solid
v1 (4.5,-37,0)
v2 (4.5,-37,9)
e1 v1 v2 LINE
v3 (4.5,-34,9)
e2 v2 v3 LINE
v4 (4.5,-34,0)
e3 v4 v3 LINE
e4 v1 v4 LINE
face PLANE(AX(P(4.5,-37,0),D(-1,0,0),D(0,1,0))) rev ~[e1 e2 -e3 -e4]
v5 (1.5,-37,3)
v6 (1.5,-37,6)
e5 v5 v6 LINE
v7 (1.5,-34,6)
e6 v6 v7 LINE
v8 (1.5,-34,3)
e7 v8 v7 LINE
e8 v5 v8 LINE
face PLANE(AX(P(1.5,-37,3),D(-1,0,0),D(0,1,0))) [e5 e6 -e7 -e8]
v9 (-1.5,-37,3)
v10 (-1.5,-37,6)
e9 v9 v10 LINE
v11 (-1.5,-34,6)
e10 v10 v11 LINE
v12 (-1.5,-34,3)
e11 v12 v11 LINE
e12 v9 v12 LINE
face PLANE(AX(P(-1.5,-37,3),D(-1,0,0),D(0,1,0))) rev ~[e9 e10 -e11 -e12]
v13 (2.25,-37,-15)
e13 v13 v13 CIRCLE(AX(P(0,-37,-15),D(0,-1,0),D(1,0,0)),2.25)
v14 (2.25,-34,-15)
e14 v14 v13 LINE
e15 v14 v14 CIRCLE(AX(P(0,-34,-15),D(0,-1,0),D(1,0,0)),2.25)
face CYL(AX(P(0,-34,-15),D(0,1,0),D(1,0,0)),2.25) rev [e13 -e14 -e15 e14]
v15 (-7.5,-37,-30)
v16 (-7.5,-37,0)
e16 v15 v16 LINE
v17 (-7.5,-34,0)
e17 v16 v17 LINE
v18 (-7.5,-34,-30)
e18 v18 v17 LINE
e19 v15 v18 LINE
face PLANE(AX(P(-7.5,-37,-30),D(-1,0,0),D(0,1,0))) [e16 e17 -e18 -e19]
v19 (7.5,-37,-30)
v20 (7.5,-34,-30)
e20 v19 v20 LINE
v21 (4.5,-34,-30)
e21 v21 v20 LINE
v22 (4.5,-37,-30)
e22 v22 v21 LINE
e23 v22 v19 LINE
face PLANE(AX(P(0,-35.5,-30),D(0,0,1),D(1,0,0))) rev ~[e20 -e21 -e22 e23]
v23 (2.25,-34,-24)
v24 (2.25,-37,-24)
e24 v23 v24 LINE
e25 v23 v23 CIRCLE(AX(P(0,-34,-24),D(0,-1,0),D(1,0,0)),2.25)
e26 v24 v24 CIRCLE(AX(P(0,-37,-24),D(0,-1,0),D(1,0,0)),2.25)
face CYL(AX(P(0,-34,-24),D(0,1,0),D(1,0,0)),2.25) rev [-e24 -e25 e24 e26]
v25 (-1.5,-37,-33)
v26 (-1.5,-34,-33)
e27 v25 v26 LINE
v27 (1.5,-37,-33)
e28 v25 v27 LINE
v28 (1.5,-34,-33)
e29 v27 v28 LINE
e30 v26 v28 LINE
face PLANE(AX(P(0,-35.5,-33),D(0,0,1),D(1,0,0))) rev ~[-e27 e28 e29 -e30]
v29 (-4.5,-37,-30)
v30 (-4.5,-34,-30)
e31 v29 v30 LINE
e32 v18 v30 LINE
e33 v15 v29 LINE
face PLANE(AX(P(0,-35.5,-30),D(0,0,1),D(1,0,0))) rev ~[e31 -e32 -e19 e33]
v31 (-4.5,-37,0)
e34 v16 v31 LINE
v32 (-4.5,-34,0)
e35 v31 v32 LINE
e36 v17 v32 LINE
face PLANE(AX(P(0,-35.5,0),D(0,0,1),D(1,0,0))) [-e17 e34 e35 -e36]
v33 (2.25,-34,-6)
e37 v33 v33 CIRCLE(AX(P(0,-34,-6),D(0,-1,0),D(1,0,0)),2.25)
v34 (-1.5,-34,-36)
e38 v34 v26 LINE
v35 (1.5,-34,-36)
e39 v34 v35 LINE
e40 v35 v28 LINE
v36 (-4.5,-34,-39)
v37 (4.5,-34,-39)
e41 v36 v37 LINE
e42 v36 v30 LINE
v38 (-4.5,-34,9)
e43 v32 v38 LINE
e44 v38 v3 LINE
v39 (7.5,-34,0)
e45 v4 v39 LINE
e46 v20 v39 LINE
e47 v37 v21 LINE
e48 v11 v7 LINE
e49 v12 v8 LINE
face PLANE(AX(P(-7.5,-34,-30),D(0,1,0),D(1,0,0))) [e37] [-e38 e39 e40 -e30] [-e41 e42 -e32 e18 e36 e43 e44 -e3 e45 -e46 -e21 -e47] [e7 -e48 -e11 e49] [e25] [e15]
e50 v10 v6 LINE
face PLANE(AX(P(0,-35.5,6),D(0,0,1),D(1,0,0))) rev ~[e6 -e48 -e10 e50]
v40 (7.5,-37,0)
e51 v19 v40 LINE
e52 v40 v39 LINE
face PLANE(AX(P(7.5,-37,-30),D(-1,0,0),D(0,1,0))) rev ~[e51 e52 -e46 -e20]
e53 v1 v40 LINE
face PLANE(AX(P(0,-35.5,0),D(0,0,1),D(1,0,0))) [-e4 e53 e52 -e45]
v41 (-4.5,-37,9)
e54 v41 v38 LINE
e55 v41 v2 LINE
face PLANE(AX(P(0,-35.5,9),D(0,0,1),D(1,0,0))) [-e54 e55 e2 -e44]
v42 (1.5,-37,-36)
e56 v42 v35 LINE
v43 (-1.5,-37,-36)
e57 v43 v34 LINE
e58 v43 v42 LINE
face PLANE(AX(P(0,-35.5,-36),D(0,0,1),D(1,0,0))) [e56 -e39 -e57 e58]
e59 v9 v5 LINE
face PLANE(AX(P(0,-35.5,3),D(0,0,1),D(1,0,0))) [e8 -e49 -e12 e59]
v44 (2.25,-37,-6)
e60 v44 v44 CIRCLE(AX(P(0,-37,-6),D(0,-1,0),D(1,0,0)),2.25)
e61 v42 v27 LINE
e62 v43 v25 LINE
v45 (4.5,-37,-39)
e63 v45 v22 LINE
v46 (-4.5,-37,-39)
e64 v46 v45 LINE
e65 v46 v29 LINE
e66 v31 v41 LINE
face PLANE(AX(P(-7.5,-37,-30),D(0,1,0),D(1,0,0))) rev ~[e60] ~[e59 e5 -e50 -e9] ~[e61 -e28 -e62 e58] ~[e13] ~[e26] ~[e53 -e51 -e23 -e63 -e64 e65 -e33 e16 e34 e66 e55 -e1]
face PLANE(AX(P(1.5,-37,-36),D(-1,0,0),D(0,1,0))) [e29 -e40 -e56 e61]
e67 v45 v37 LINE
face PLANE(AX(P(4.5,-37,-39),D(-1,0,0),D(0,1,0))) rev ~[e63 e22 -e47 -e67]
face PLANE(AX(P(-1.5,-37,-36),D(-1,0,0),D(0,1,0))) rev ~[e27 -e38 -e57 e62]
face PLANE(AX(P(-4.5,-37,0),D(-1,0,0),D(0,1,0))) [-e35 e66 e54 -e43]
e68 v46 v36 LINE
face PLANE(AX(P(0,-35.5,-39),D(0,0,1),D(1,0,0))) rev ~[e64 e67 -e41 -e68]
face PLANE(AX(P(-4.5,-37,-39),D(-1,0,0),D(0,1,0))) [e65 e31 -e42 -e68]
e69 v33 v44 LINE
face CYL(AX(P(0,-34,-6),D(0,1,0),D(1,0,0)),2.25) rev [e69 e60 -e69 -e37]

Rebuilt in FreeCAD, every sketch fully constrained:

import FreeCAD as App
import Part
import Sketcher
Q = App.Units.Quantity


def add_polygon(sketch, points):
    """Adds a closed chain of lines whose ends are joined by coincident constraints."""
    first, n = sketch.GeometryCount, len(points)
    for a, b in zip(points, points[1:] + points[:1]):
        sketch.addGeometry(Part.LineSegment(App.Vector(*a, 0), App.Vector(*b, 0)), False)
    for i in range(n):
        sketch.addConstraint(Sketcher.Constraint("Coincident", first + i, 2, first + (i + 1) % n, 1))

doc = App.newDocument("Part")
params = doc.addObject("Spreadsheet::Sheet", "Params")
for row, (alias, value) in enumerate([
    ("sketch1_diameter", "4.5 mm"),
    ("pad1_length", "3 mm"),
    ("sketch2_diameter", "4.5 mm"),
    ("pad2_length", "3 mm"),
    ("sketch3_diameter", "4.5 mm"),
    ("pad3_length", "3 mm"),
    ("sketch4_width", "15 mm"),
    ("sketch4_height", "3 mm"),
    ("pad4_length", "30 mm"),
    ("sketch5_width", "3 mm"),
    ("pad5_length", "3 mm"),
    ("sketch6_width", "9 mm"),
    ("sketch6_height", "3 mm"),
    ("pad6_length", "9 mm"),
    ("sketch7_width", "3 mm"),
    ("pad7_length", "3 mm"),
    ("sketch8_width", "9 mm"),
    ("sketch8_height", "3 mm"),
    ("pad8_length", "9 mm"),
], start=1):
    params.set(f"A{row}", alias)
    params.set(f"B{row}", "=" + value)
    params.setAlias(f"B{row}", alias)

body = doc.addObject("PartDesign::Body", "Body")

sketch1 = body.newObject("Sketcher::SketchObject", "Sketch")
sketch1.AttachmentSupport = (doc.getObject("XY_Plane"), [""])
sketch1.MapMode = "FlatFace"
sketch1.addGeometry(Part.Circle(App.Vector(0, 0, 0), App.Vector(0, 0, 1), 2.2), False)
sketch1.addConstraint(Sketcher.Constraint("Coincident", 0, 3, -1, 1))
sketch1.addConstraint(Sketcher.Constraint("Diameter", 0, Q("4.5 mm")))
sketch1.setExpression("Constraints[1]", "Params.sketch1_diameter")
pad1 = body.newObject("PartDesign::Pad", "Pad")
pad1.Profile = sketch1
pad1.setExpression("Length", "Params.pad1_length")
body2 = doc.addObject("PartDesign::Body", "Body001")
doc.recompute()

body.Placement = App.Placement(App.Vector(0, 0, 0), App.Rotation(App.Vector(1, 0, 0), 90))
boolean = body2.newObject("PartDesign::Boolean", "Boolean")
boolean.Type = "Fuse"
boolean.addObjects([body])
body3 = doc.addObject("PartDesign::Body", "Body002")
doc.recompute()

body2.Placement = App.Placement(App.Vector(0, -63, -3), App.Rotation(App.Vector(0, 0, 1), 0))
boolean2 = body3.newObject("PartDesign::Boolean", "Boolean001")
boolean2.Type = "Fuse"
boolean2.addObjects([body2])
body4 = doc.addObject("PartDesign::Body", "Body003")

sketch2 = body4.newObject("Sketcher::SketchObject", "Sketch001")
sketch2.AttachmentSupport = (doc.getObject("XY_Plane003"), [""])
sketch2.MapMode = "FlatFace"
sketch2.addGeometry(Part.Circle(App.Vector(0, 0, 0), App.Vector(0, 0, 1), 2.2), False)
sketch2.addConstraint(Sketcher.Constraint("Coincident", 0, 3, -1, 1))
sketch2.addConstraint(Sketcher.Constraint("Diameter", 0, Q("4.5 mm")))
sketch2.setExpression("Constraints[1]", "Params.sketch2_diameter")
pad2 = body4.newObject("PartDesign::Pad", "Pad001")
pad2.Profile = sketch2
pad2.setExpression("Length", "Params.pad2_length")
body5 = doc.addObject("PartDesign::Body", "Body004")
doc.recompute()

body4.Placement = App.Placement(App.Vector(0, 0, 0), App.Rotation(App.Vector(1, 0, 0), 90))
boolean3 = body5.newObject("PartDesign::Boolean", "Boolean002")
boolean3.Type = "Fuse"
boolean3.addObjects([body4])
body6 = doc.addObject("PartDesign::Body", "Body005")
doc.recompute()

body5.Placement = App.Placement(App.Vector(0, -63, -21), App.Rotation(App.Vector(0, 0, 1), 0))
boolean4 = body6.newObject("PartDesign::Boolean", "Boolean003")
boolean4.Type = "Fuse"
boolean4.addObjects([body5])
body7 = doc.addObject("PartDesign::Body", "Body006")

sketch3 = body7.newObject("Sketcher::SketchObject", "Sketch002")
sketch3.AttachmentSupport = (doc.getObject("XY_Plane006"), [""])
sketch3.MapMode = "FlatFace"
sketch3.addGeometry(Part.Circle(App.Vector(0, 0, 0), App.Vector(0, 0, 1), 2.2), False)
sketch3.addConstraint(Sketcher.Constraint("Coincident", 0, 3, -1, 1))
sketch3.addConstraint(Sketcher.Constraint("Diameter", 0, Q("4.5 mm")))
sketch3.setExpression("Constraints[1]", "Params.sketch3_diameter")
pad3 = body7.newObject("PartDesign::Pad", "Pad002")
pad3.Profile = sketch3
pad3.setExpression("Length", "Params.pad3_length")
body8 = doc.addObject("PartDesign::Body", "Body007")
doc.recompute()

body7.Placement = App.Placement(App.Vector(0, 0, 0), App.Rotation(App.Vector(1, 0, 0), 90))
boolean5 = body8.newObject("PartDesign::Boolean", "Boolean004")
boolean5.Type = "Fuse"
boolean5.addObjects([body7])
body9 = doc.addObject("PartDesign::Body", "Body008")
doc.recompute()

body8.Placement = App.Placement(App.Vector(0, -63, -12), App.Rotation(App.Vector(0, 0, 1), 0))
boolean6 = body9.newObject("PartDesign::Boolean", "Boolean005")
boolean6.Type = "Fuse"
boolean6.addObjects([body8])
body10 = doc.addObject("PartDesign::Body", "Body009")

sketch4 = body10.newObject("Sketcher::SketchObject", "Sketch003")
sketch4.AttachmentSupport = (doc.getObject("XY_Plane009"), [""])
sketch4.MapMode = "FlatFace"
sketch4.AttachmentOffset = App.Placement(App.Vector(0, 0, -27), App.Rotation())
add_polygon(sketch4, [(-7.5, -63), (-7.5, -66), (7.5, -66), (7.5, -63)])
sketch4.addConstraint(Sketcher.Constraint("Vertical", 0))
sketch4.addConstraint(Sketcher.Constraint("Horizontal", 1))
sketch4.addConstraint(Sketcher.Constraint("Vertical", 2))
sketch4.addConstraint(Sketcher.Constraint("Horizontal", 3))
sketch4.addConstraint(Sketcher.Constraint("DistanceX", 1, 1, 1, 2, Q("15 mm")))
sketch4.addConstraint(Sketcher.Constraint("DistanceY", 0, 2, 0, 1, Q("3 mm")))
sketch4.addConstraint(Sketcher.Constraint("DistanceY", 0, 2, -1, 1, Q("66 mm")))
sketch4.addConstraint(Sketcher.Constraint("DistanceX", 0, 2, -1, 1, Q("7.5 mm")))
sketch4.setExpression("Constraints[8]", "Params.sketch4_width")
sketch4.setExpression("Constraints[9]", "Params.sketch4_height")
pad4 = body10.newObject("PartDesign::Pad", "Pad003")
pad4.Profile = sketch4
pad4.setExpression("Length", "Params.pad4_length")
body11 = doc.addObject("PartDesign::Body", "Body010")

sketch5 = body11.newObject("Sketcher::SketchObject", "Sketch004")
sketch5.AttachmentSupport = (doc.getObject("XY_Plane010"), [""])
sketch5.MapMode = "FlatFace"
sketch5.AttachmentOffset = App.Placement(App.Vector(0, 0, 6), App.Rotation())
add_polygon(sketch5, [(-1.5, -63), (-1.5, -66), (1.5, -66), (1.5, -63)])
sketch5.addConstraint(Sketcher.Constraint("Vertical", 0))
sketch5.addConstraint(Sketcher.Constraint("Horizontal", 1))
sketch5.addConstraint(Sketcher.Constraint("Vertical", 2))
sketch5.addConstraint(Sketcher.Constraint("Horizontal", 3))
sketch5.addConstraint(Sketcher.Constraint("Equal", 3, 0))
sketch5.addConstraint(Sketcher.Constraint("DistanceX", 1, 1, 1, 2, Q("3 mm")))
sketch5.addConstraint(Sketcher.Constraint("DistanceY", 0, 2, -1, 1, Q("66 mm")))
sketch5.addConstraint(Sketcher.Constraint("DistanceX", 0, 2, -1, 1, Q("1.5 mm")))
sketch5.setExpression("Constraints[9]", "Params.sketch5_width")
pad5 = body11.newObject("PartDesign::Pad", "Pad004")
pad5.Profile = sketch5
pad5.setExpression("Length", "Params.pad5_length")
body12 = doc.addObject("PartDesign::Body", "Body011")

sketch6 = body12.newObject("Sketcher::SketchObject", "Sketch005")
sketch6.AttachmentSupport = (doc.getObject("XY_Plane011"), [""])
sketch6.MapMode = "FlatFace"
sketch6.AttachmentOffset = App.Placement(App.Vector(0, 0, 3), App.Rotation())
add_polygon(sketch6, [(-4.5, -63), (-4.5, -66), (4.5, -66), (4.5, -63)])
sketch6.addConstraint(Sketcher.Constraint("Vertical", 0))
sketch6.addConstraint(Sketcher.Constraint("Horizontal", 1))
sketch6.addConstraint(Sketcher.Constraint("Vertical", 2))
sketch6.addConstraint(Sketcher.Constraint("Horizontal", 3))
sketch6.addConstraint(Sketcher.Constraint("DistanceX", 1, 1, 1, 2, Q("9 mm")))
sketch6.addConstraint(Sketcher.Constraint("DistanceY", 0, 2, 0, 1, Q("3 mm")))
sketch6.addConstraint(Sketcher.Constraint("DistanceY", 0, 2, -1, 1, Q("66 mm")))
sketch6.addConstraint(Sketcher.Constraint("DistanceX", 0, 2, -1, 1, Q("4.5 mm")))
sketch6.setExpression("Constraints[8]", "Params.sketch6_width")
sketch6.setExpression("Constraints[9]", "Params.sketch6_height")
pad6 = body12.newObject("PartDesign::Pad", "Pad005")
pad6.Profile = sketch6
pad6.setExpression("Length", "Params.pad6_length")
doc.recompute()

boolean7 = body12.newObject("PartDesign::Boolean", "Boolean006")
boolean7.Type = "Cut"
boolean7.addObjects([body11])
body13 = doc.addObject("PartDesign::Body", "Body012")

sketch7 = body13.newObject("Sketcher::SketchObject", "Sketch006")
sketch7.AttachmentSupport = (doc.getObject("XY_Plane012"), [""])
sketch7.MapMode = "FlatFace"
sketch7.AttachmentOffset = App.Placement(App.Vector(0, 0, 6), App.Rotation())
add_polygon(sketch7, [(-1.5, -63), (-1.5, -66), (1.5, -66), (1.5, -63)])
sketch7.addConstraint(Sketcher.Constraint("Vertical", 0))
sketch7.addConstraint(Sketcher.Constraint("Horizontal", 1))
sketch7.addConstraint(Sketcher.Constraint("Vertical", 2))
sketch7.addConstraint(Sketcher.Constraint("Horizontal", 3))
sketch7.addConstraint(Sketcher.Constraint("Equal", 3, 0))
sketch7.addConstraint(Sketcher.Constraint("DistanceX", 1, 1, 1, 2, Q("3 mm")))
sketch7.addConstraint(Sketcher.Constraint("DistanceY", 0, 2, -1, 1, Q("66 mm")))
sketch7.addConstraint(Sketcher.Constraint("DistanceX", 0, 2, -1, 1, Q("1.5 mm")))
sketch7.setExpression("Constraints[9]", "Params.sketch7_width")
pad7 = body13.newObject("PartDesign::Pad", "Pad006")
pad7.Profile = sketch7
pad7.setExpression("Length", "Params.pad7_length")
body14 = doc.addObject("PartDesign::Body", "Body013")

sketch8 = body14.newObject("Sketcher::SketchObject", "Sketch007")
sketch8.AttachmentSupport = (doc.getObject("XY_Plane013"), [""])
sketch8.MapMode = "FlatFace"
sketch8.AttachmentOffset = App.Placement(App.Vector(0, 0, 3), App.Rotation())
add_polygon(sketch8, [(-4.5, -63), (-4.5, -66), (4.5, -66), (4.5, -63)])
sketch8.addConstraint(Sketcher.Constraint("Vertical", 0))
sketch8.addConstraint(Sketcher.Constraint("Horizontal", 1))
sketch8.addConstraint(Sketcher.Constraint("Vertical", 2))
sketch8.addConstraint(Sketcher.Constraint("Horizontal", 3))
sketch8.addConstraint(Sketcher.Constraint("DistanceX", 1, 1, 1, 2, Q("9 mm")))
sketch8.addConstraint(Sketcher.Constraint("DistanceY", 0, 2, 0, 1, Q("3 mm")))
sketch8.addConstraint(Sketcher.Constraint("DistanceY", 0, 2, -1, 1, Q("66 mm")))
sketch8.addConstraint(Sketcher.Constraint("DistanceX", 0, 2, -1, 1, Q("4.5 mm")))
sketch8.setExpression("Constraints[8]", "Params.sketch8_width")
sketch8.setExpression("Constraints[9]", "Params.sketch8_height")
pad8 = body14.newObject("PartDesign::Pad", "Pad007")
pad8.Profile = sketch8
pad8.setExpression("Length", "Params.pad8_length")
doc.recompute()

boolean8 = body14.newObject("PartDesign::Boolean", "Boolean007")
boolean8.Type = "Cut"
boolean8.addObjects([body13])
body15 = doc.addObject("PartDesign::Body", "Body014")
doc.recompute()

body14.Placement = App.Placement(App.Vector(0, 0, -39), App.Rotation(App.Vector(0, 0, 1), 0))
boolean9 = body15.newObject("PartDesign::Boolean", "Boolean008")
boolean9.Type = "Fuse"
boolean9.addObjects([body14])
doc.recompute()

boolean10 = body15.newObject("PartDesign::Boolean", "Boolean009")
boolean10.Type = "Fuse"
boolean10.addObjects([body10])
doc.recompute()

boolean11 = body15.newObject("PartDesign::Boolean", "Boolean010")
boolean11.Type = "Fuse"
boolean11.addObjects([body12])
doc.recompute()

boolean12 = body15.newObject("PartDesign::Boolean", "Boolean011")
boolean12.Type = "Cut"
boolean12.addObjects([body9])
doc.recompute()

boolean13 = body15.newObject("PartDesign::Boolean", "Boolean012")
boolean13.Type = "Cut"
boolean13.addObjects([body6])
doc.recompute()

boolean14 = body15.newObject("PartDesign::Boolean", "Boolean013")
boolean14.Type = "Cut"
boolean14.addObjects([body3])
body16 = doc.addObject("PartDesign::Body", "Body015")
doc.recompute()

body15.Placement = App.Placement(App.Vector(0, 29, -3), App.Rotation(App.Vector(0, 0, 1), 0))
boolean15 = body16.newObject("PartDesign::Boolean", "Boolean014")
boolean15.Type = "Fuse"
boolean15.addObjects([body15])

doc.recompute()
